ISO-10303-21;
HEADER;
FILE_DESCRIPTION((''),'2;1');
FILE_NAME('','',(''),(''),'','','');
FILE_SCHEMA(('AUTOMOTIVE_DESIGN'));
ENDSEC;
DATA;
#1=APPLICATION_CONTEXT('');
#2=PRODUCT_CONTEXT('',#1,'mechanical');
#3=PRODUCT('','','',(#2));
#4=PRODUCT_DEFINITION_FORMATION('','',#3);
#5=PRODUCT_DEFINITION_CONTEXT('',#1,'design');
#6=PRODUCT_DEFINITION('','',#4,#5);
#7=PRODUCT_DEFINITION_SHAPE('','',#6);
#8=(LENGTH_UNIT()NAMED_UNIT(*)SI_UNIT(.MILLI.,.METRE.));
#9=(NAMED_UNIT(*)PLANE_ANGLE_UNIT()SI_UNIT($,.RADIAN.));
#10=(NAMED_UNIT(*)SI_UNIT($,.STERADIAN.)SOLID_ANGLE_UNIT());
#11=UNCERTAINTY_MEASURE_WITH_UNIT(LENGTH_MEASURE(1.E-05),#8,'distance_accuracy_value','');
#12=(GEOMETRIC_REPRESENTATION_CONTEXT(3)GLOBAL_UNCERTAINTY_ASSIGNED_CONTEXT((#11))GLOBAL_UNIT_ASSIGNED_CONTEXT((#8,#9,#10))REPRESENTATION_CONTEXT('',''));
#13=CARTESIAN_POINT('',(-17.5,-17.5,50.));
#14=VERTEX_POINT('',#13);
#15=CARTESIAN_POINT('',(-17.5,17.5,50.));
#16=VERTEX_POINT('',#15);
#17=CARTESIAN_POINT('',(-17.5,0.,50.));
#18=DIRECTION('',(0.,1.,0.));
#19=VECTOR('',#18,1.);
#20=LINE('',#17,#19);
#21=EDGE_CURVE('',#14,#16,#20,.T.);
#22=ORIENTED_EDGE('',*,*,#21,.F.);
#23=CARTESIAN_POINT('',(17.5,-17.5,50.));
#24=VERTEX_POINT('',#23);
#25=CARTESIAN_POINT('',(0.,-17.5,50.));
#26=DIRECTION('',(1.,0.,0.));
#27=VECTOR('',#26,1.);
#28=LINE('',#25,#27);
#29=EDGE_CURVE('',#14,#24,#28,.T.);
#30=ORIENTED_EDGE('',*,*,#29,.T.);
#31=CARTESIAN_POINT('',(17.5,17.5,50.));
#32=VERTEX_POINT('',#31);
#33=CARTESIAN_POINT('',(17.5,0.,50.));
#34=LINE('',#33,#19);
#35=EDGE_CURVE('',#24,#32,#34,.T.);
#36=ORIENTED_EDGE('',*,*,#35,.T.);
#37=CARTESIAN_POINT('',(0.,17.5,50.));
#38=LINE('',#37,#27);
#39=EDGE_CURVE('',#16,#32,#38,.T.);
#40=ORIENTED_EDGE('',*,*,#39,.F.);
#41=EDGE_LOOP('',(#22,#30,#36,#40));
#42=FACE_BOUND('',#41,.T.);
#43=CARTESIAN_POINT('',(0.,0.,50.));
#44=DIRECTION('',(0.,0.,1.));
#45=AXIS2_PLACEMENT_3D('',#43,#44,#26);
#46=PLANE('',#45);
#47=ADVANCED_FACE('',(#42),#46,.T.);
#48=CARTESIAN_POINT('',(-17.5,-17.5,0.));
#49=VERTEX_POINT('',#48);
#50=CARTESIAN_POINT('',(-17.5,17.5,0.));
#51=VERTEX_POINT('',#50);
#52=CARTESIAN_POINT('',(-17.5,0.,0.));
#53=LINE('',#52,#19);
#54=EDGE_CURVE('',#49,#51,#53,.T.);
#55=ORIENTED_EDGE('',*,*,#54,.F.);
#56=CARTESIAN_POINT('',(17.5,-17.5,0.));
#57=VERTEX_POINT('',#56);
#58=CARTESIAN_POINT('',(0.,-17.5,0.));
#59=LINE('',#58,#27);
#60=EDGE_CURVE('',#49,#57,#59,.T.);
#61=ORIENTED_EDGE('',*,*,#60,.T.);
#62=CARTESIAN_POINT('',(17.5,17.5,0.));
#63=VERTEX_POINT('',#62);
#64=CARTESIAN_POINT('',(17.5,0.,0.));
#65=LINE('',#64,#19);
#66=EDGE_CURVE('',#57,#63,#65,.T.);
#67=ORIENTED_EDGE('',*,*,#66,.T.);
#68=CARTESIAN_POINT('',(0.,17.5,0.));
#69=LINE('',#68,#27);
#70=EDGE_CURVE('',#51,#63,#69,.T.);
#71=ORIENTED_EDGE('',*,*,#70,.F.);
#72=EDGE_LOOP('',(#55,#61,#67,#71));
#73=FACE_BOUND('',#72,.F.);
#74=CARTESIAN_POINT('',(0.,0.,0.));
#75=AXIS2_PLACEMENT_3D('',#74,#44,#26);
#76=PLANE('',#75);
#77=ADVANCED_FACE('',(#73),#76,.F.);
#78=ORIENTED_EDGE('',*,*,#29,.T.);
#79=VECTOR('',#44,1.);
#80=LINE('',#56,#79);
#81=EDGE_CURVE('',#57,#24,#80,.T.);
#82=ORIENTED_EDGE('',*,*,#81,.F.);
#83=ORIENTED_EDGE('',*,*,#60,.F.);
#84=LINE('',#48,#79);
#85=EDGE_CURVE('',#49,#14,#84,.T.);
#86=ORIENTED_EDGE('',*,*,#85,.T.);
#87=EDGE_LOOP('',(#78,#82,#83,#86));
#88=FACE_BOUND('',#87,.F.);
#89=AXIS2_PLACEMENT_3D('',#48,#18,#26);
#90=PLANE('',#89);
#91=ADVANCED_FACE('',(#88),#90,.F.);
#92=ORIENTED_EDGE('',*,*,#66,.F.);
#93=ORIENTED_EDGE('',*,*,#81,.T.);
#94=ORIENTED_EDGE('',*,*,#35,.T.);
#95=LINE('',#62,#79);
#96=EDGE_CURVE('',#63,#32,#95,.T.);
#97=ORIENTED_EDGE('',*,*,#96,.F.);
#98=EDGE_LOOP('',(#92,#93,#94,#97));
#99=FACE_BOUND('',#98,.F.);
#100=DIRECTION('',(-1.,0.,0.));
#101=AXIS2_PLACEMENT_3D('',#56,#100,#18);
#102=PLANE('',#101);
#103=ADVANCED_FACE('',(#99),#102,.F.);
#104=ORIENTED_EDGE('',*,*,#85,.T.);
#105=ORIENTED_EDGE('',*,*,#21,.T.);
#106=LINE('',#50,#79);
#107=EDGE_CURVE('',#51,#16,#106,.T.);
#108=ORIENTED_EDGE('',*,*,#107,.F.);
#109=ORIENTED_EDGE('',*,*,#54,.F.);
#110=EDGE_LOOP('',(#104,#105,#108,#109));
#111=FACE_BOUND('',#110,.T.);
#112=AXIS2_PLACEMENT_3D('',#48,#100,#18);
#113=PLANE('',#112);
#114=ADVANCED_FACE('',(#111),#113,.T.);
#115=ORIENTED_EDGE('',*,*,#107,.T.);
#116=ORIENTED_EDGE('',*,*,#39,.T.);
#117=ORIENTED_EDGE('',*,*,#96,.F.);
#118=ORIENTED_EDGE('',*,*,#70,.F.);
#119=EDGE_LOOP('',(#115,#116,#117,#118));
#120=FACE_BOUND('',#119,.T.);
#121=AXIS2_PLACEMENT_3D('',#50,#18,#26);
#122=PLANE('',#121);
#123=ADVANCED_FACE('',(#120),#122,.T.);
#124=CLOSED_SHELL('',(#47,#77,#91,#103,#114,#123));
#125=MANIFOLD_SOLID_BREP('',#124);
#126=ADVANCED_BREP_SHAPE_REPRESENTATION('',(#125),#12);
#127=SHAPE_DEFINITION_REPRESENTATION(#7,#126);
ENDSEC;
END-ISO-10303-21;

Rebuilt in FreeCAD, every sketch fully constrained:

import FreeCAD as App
import Part
import Sketcher

doc = App.newDocument("Part")
body = doc.addObject("PartDesign::Body", "Body")

# Sketch on XY plane
sketch1 = body.newObject("Sketcher::SketchObject", "Sketch")
sketch1.AttachmentSupport = (doc.getObject("XY_Plane"), [""])
sketch1.MapMode = "FlatFace"
sketch1.addGeometry([
    Part.LineSegment(App.Vector(-18, 18, 0), App.Vector(-18, -18, 0)),
    Part.LineSegment(App.Vector(-18, -18, 0), App.Vector(18, -18, 0)),
    Part.LineSegment(App.Vector(18, -18, 0), App.Vector(18, 18, 0)),
    Part.LineSegment(App.Vector(18, 18, 0), App.Vector(-18, 18, 0)),
], False)
sketch1.addConstraint([
    Sketcher.Constraint("Coincident", 0, 2, 1, 1),
    Sketcher.Constraint("Coincident", 1, 2, 2, 1),
    Sketcher.Constraint("Coincident", 2, 2, 3, 1),
    Sketcher.Constraint("Coincident", 3, 2, 0, 1),
    Sketcher.Constraint("Vertical", 0),
    Sketcher.Constraint("Horizontal", 1),
    Sketcher.Constraint("Vertical", 2),
    Sketcher.Constraint("Horizontal", 3),
    Sketcher.Constraint("Symmetric", 0, 2, 2, 2, -1, 1),
    Sketcher.Constraint("Equal", 3, 0),
    Sketcher.Constraint("DistanceX", 1, 1, 1, 2, 35.0),
])
pad1 = body.newObject("PartDesign::Pad", "Pad")
pad1.Profile = sketch1
pad1.Length = 50

doc.recompute()
